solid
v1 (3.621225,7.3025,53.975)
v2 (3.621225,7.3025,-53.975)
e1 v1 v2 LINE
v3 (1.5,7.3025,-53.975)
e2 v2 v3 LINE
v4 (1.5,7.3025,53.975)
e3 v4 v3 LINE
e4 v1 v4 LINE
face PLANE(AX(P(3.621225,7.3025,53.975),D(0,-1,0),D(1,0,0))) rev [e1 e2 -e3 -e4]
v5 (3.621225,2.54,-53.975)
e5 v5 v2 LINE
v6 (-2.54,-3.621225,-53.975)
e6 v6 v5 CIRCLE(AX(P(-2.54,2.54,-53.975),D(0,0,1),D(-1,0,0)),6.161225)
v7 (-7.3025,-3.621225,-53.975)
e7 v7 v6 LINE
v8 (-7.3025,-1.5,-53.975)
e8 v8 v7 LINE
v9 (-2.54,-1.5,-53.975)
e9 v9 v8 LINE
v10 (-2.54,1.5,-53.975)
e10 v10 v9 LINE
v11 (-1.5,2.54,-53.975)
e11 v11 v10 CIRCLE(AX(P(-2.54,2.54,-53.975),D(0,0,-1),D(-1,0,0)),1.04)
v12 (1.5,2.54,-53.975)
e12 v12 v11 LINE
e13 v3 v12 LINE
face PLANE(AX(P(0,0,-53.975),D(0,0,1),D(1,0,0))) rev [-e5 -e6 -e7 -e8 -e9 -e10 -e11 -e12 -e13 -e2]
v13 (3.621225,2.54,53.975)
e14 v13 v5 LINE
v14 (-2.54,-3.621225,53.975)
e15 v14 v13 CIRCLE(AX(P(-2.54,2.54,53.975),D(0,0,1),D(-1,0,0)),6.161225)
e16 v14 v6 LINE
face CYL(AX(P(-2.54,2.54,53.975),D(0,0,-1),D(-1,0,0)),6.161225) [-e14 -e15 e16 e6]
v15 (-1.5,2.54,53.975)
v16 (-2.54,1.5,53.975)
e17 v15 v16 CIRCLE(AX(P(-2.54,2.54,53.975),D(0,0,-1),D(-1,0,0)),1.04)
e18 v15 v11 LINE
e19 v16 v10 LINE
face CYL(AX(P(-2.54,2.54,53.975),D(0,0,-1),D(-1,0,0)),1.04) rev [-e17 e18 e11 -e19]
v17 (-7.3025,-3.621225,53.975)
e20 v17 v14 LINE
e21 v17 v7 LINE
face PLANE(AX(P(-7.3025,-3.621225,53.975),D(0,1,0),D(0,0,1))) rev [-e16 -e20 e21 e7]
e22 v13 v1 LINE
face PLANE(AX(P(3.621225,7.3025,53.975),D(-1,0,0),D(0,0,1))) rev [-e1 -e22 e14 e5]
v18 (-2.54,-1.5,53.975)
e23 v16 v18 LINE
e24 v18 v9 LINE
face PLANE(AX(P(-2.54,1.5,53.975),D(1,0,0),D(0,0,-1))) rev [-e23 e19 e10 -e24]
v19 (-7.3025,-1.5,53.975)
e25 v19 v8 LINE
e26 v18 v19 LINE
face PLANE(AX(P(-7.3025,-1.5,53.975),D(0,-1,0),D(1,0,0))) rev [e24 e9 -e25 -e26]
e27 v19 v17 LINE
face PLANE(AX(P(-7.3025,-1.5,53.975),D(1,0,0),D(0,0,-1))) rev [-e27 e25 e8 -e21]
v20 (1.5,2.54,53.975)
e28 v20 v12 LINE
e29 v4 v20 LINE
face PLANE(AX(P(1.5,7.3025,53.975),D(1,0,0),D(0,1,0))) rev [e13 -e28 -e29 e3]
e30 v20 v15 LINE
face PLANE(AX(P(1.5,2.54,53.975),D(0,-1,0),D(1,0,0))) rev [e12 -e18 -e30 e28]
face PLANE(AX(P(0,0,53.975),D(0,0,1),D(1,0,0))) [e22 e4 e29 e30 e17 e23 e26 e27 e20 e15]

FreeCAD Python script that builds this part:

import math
import FreeCAD as App
import Part
import Sketcher
Q = App.Units.Quantity


def add_polygon(sketch, points):
    """Adds a closed chain of lines whose ends are joined by coincident constraints."""
    first, n = sketch.GeometryCount, len(points)
    for a, b in zip(points, points[1:] + points[:1]):
        sketch.addGeometry(Part.LineSegment(App.Vector(*a, 0), App.Vector(*b, 0)), False)
    for i in range(n):
        sketch.addConstraint(Sketcher.Constraint("Coincident", first + i, 2, first + (i + 1) % n, 1))

doc = App.newDocument("Part")
body = doc.addObject("PartDesign::Body", "Body")

# Sketch on XY plane
sketch1 = body.newObject("Sketcher::SketchObject", "Sketch")
sketch1.AttachmentSupport = (doc.getObject("XY_Plane"), [""])
sketch1.MapMode = "FlatFace"
add_polygon(sketch1, [(-7.3, -1.5), (-7.3, -3.6), (-2.5, -3.6), (-2.5, -1.5)])  # lines 0-3
sketch1.addConstraint([
    Sketcher.Constraint("Vertical", 0),
    Sketcher.Constraint("Horizontal", 1),
    Sketcher.Constraint("Vertical", 2),
    Sketcher.Constraint("Horizontal", 3),
    Sketcher.Constraint("DistanceX", 1, 2, -1, 1, Q("0.1 in")),
    Sketcher.Constraint("DistanceX", 1, 1, 1, 2, Q("0.1875 in")),
    Sketcher.Constraint("DistanceY", 2, 2, -1, 1, 1.5),
    Sketcher.Constraint("DistanceY", 0, 2, 0, 1, 2.121225),
])
pad1 = body.newObject("PartDesign::Pad", "Pad")
pad1.Profile = sketch1
pad1.Length = Q("4.25 in")
pad1.Midplane = True
body2 = doc.addObject("PartDesign::Body", "Body001")

# Sketch on XY plane
sketch2 = body2.newObject("Sketcher::SketchObject", "Sketch001")
sketch2.AttachmentSupport = (doc.getObject("XY_Plane001"), [""])
sketch2.MapMode = "FlatFace"
add_polygon(sketch2, [(1.5, 7.3), (1.5, 2.5), (3.6, 2.5), (3.6, 7.3)])  # lines 0-3
sketch2.addConstraint([
    Sketcher.Constraint("Vertical", 0),
    Sketcher.Constraint("Horizontal", 1),
    Sketcher.Constraint("Vertical", 2),
    Sketcher.Constraint("Horizontal", 3),
    Sketcher.Constraint("DistanceY", -1, 1, 0, 2, Q("0.1 in")),
    Sketcher.Constraint("DistanceY", 0, 2, 0, 1, Q("0.1875 in")),
    Sketcher.Constraint("DistanceX", -1, 1, 0, 2, 1.5),
    Sketcher.Constraint("DistanceX", 1, 1, 1, 2, 2.121225),
])
pad2 = body2.newObject("PartDesign::Pad", "Pad001")
pad2.Profile = sketch2
pad2.Length = Q("4.25 in")
pad2.Midplane = True
body.AllowCompound = True
doc.recompute()

boolean = body.newObject("PartDesign::Boolean", "Boolean")
boolean.Type = "Fuse"
boolean.addObjects([body2])

# Sketch on XY plane
sketch3 = body.newObject("Sketcher::SketchObject", "Sketch002")
sketch3.AttachmentSupport = (doc.getObject("XY_Plane"), [""])
sketch3.MapMode = "FlatFace"
sketch3.addGeometry([
    Part.LineSegment(App.Vector(-2.5, -1.5, 0), App.Vector(-7.3, -1.5, 0)),  # 0
    Part.LineSegment(App.Vector(-7.3, -1.5, 0), App.Vector(-7.3, -3.6, 0)),  # 1
    Part.LineSegment(App.Vector(-7.3, -3.6, 0), App.Vector(-2.5, -3.6, 0)),  # 2
    Part.ArcOfCircle(Part.Circle(App.Vector(-2.5, 2.5, 0), App.Vector(0, 0, 1), 6.2), math.radians(-90), math.radians(0)),  # 3
    Part.LineSegment(App.Vector(3.6, 2.5, 0), App.Vector(3.6, 7.3, 0)),  # 4
    Part.LineSegment(App.Vector(3.6, 7.3, 0), App.Vector(1.5, 7.3, 0)),  # 5
    Part.LineSegment(App.Vector(1.5, 7.3, 0), App.Vector(1.5, 2.5, 0)),  # 6
    Part.LineSegment(App.Vector(1.5, 2.5, 0), App.Vector(-1.5, 2.5, 0)),  # 7
    Part.ArcOfCircle(Part.Circle(App.Vector(-2.5, 2.5, 0), App.Vector(0, 0, 1), 1), math.radians(-90), math.radians(0)),  # 8
    Part.LineSegment(App.Vector(-2.5, 1.5, 0), App.Vector(-2.5, -1.5, 0)),  # 9
], False)
sketch3.addConstraint([
    Sketcher.Constraint("Coincident", 0, 2, 1, 1),
    Sketcher.Constraint("Coincident", 1, 2, 2, 1),
    Sketcher.Constraint("Tangent", 2, 2, 3, 1),
    Sketcher.Constraint("Tangent", 3, 2, 4, 1),
    Sketcher.Constraint("Coincident", 4, 2, 5, 1),
    Sketcher.Constraint("Coincident", 5, 2, 6, 1),
    Sketcher.Constraint("Coincident", 6, 2, 7, 1),
    Sketcher.Constraint("Coincident", 7, 2, 8, 2),
    Sketcher.Constraint("Coincident", 8, 1, 9, 1),
    Sketcher.Constraint("Coincident", 9, 2, 0, 1),
    Sketcher.Constraint("Horizontal", 0),
    Sketcher.Constraint("Vertical", 1),
    Sketcher.Constraint("Horizontal", 2),
    Sketcher.Constraint("Vertical", 4),
    Sketcher.Constraint("Horizontal", 5),
    Sketcher.Constraint("Vertical", 6),
    Sketcher.Constraint("Horizontal", 7),
    Sketcher.Constraint("Vertical", 9),
    Sketcher.Constraint("Coincident", 8, 3, 3, 3),
    Sketcher.Constraint("Horizontal", 3, 2, 6, 2),
    Sketcher.Constraint("Vertical", 2, 2, 8, 1),
    Sketcher.Constraint("Equal", 5, 1),
    Sketcher.Constraint("Equal", 2, 4),
    Sketcher.Constraint("DistanceX", 3, 3, -1, 1, Q("0.1 in")),
    Sketcher.Constraint("DistanceY", -1, 1, 3, 3, Q("0.1 in")),
    Sketcher.Constraint("DistanceX", 0, 2, 0, 1, Q("0.1875 in")),
    Sketcher.Constraint("Radius", 8, 1.04),
    Sketcher.Constraint("DistanceX", 7, 2, 7, 1, 3.0),
    Sketcher.Constraint("Radius", 3, 6.161225),
])
pad3 = body.newObject("PartDesign::Pad", "Pad002")
pad3.Profile = sketch3
pad3.Length = Q("4.25 in")
pad3.Midplane = True

doc.recompute()
